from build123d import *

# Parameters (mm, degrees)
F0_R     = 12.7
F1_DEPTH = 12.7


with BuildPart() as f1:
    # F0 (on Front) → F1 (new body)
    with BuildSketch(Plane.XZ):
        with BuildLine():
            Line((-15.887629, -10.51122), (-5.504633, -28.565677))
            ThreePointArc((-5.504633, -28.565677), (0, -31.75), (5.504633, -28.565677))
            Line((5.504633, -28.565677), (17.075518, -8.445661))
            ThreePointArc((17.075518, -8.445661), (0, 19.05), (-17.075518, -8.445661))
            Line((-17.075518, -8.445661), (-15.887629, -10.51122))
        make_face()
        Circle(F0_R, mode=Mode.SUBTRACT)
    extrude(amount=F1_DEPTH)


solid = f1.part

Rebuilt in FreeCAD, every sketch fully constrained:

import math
import FreeCAD as App
import Part
import Sketcher

V = App.Vector
Q = App.Units.Quantity

doc = App.newDocument("Part")
body = doc.addObject("PartDesign::Body", "Body")

# Sketch on XZ plane
sketch1 = body.newObject("Sketcher::SketchObject", "Sketch")
sketch1.AttachmentSupport = (doc.getObject("XZ_Plane"), [""])
sketch1.MapMode = "FlatFace"
sketch1.addGeometry([
    Part.LineSegment(V(-15.9, -10.5, 0), V(-5.5, -28.6, 0)),  # 0
    Part.ArcOfCircle(Part.Circle(V(0, -25.4, 0), V(0, 0, 1), 6.3), math.radians(-150), math.radians(-30)),  # 1
    Part.LineSegment(V(5.5, -28.6, 0), V(17.1, -8.4, 0)),  # 2
    Part.ArcOfCircle(Part.Circle(V(0, 0, 0), V(0, 0, 1), 19.1), math.radians(-26), math.radians(206)),  # 3
    Part.LineSegment(V(-17.1, -8.4, 0), V(-15.9, -10.5, 0)),  # 4
    Part.Circle(V(0, 0, 0), V(0, 0, 1), 12.7),  # 5
], False)
sketch1.addConstraint([
    Sketcher.Constraint("Tangent", 0, 2, 1, 1),
    Sketcher.Constraint("Tangent", 1, 2, 2, 1),
    Sketcher.Constraint("Coincident", 2, 2, 3, 1),
    Sketcher.Constraint("Coincident", 3, 2, 4, 1),
    Sketcher.Constraint("Coincident", 4, 2, 0, 1),
    Sketcher.Constraint("Coincident", 3, 3, -1, 1),
    Sketcher.Constraint("Coincident", 5, 3, -1, 1),
    Sketcher.Constraint("Symmetric", 0, 2, 1, 2, -2),
    Sketcher.Constraint("Parallel", 0, 4),
    Sketcher.Constraint("Diameter", 5, Q("1 in")),
    Sketcher.Constraint("Radius", 1, Q("0.25 in")),
    Sketcher.Constraint("Radius", 3, Q("0.75 in")),
    Sketcher.Constraint("DistanceY", 1, 3, -1, 1, Q("1 in")),
    Sketcher.Constraint("Distance", 2, 23.209921),
    Sketcher.Constraint("DistanceX", 4, 2, -1, 1, 15.887629),
])
pad1 = body.newObject("PartDesign::Pad", "Pad")
pad1.Profile = sketch1
pad1.Length = Q("0.5 in")

doc.recompute()
